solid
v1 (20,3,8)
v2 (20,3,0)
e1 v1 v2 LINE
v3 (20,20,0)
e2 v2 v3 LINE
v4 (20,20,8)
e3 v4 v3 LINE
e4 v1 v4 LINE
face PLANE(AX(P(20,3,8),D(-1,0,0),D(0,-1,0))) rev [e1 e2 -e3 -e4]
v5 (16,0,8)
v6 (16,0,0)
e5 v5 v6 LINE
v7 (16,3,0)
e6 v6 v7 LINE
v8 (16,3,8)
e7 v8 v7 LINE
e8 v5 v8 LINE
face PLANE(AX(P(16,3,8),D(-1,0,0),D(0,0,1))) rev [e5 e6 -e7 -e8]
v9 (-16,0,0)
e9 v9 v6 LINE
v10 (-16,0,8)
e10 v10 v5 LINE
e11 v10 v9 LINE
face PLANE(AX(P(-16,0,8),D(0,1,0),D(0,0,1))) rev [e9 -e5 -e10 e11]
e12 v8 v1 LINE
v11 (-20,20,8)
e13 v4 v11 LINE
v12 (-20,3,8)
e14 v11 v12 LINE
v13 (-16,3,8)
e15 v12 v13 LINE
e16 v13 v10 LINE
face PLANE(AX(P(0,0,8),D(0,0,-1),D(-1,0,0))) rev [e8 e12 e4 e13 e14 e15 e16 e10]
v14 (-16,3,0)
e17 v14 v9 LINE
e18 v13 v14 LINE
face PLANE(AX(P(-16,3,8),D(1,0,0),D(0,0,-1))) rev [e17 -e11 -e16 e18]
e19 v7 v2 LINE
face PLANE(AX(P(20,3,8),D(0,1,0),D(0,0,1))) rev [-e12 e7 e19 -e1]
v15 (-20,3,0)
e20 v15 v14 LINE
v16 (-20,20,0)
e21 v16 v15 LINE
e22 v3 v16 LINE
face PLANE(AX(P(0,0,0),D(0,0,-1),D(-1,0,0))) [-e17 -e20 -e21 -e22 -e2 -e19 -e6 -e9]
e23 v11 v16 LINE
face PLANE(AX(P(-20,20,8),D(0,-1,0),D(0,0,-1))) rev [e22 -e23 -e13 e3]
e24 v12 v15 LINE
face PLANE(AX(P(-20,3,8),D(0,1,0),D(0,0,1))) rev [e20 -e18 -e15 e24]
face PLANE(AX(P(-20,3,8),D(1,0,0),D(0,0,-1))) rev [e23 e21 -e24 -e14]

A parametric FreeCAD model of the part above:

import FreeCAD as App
import Part
import Sketcher
from FreeCAD import Vector
Q = App.Units.Quantity


def add_polygon(sketch, points):
    """Adds a closed chain of lines whose ends are joined by coincident constraints."""
    first, n = sketch.GeometryCount, len(points)
    for a, b in zip(points, points[1:] + points[:1]):
        sketch.addGeometry(Part.LineSegment(App.Vector(*a, 0), App.Vector(*b, 0)), False)
    for i in range(n):
        sketch.addConstraint(Sketcher.Constraint("Coincident", first + i, 2, first + (i + 1) % n, 1))

doc = App.newDocument("Part")
params = doc.addObject("Spreadsheet::Sheet", "Params")
for row, (alias, value) in enumerate([
    ("sketch1_width", "32 mm"),
    ("sketch1_width2", "4 mm"),
    ("sketch1_height", "3 mm"),
    ("sketch1_height2", "17 mm"),
    ("pad1_length", "8 mm"),
], start=1):
    params.set(f"A{row}", alias)
    params.set(f"B{row}", "=" + value)
    params.setAlias(f"B{row}", alias)

body = doc.addObject("PartDesign::Body", "Body")

# Sketch on XY plane
sketch1 = body.newObject("Sketcher::SketchObject", "Sketch")
sketch1.AttachmentSupport = (doc.getObject("XY_Plane"), [""])
sketch1.MapMode = "FlatFace"
add_polygon(sketch1, [(-16, 0), (16, 0), (16, 3), (20, 3), (20, 20), (-20, 20), (-20, 3), (-16, 3)])  # lines 0-7
sketch1.addConstraint([
    Sketcher.Constraint("Horizontal", 0),
    Sketcher.Constraint("Vertical", 1),
    Sketcher.Constraint("Horizontal", 2),
    Sketcher.Constraint("Vertical", 3),
    Sketcher.Constraint("Horizontal", 4),
    Sketcher.Constraint("Vertical", 5),
    Sketcher.Constraint("Horizontal", 6),
    Sketcher.Constraint("Vertical", 7),
    Sketcher.Constraint("Symmetric", 0, 2, 7, 2, -1, 1),
    Sketcher.Constraint("Symmetric", 2, 2, 5, 2, -2),
    Sketcher.Constraint("DistanceX", 0, 1, 0, 2, Q("32 mm")),
    Sketcher.Constraint("DistanceX", 2, 1, 2, 2, Q("4 mm")),
    Sketcher.Constraint("DistanceY", 1, 1, 1, 2, Q("3 mm")),
    Sketcher.Constraint("DistanceY", 3, 1, 3, 2, Q("17 mm")),
])
sketch1.setExpression("Constraints[18]", "Params.sketch1_width")
sketch1.setExpression("Constraints[19]", "Params.sketch1_width2")
sketch1.setExpression("Constraints[20]", "Params.sketch1_height")
sketch1.setExpression("Constraints[21]", "Params.sketch1_height2")
pad1 = body.newObject("PartDesign::Pad", "Pad")
pad1.Profile = sketch1
pad1.setExpression("Length", "Params.pad1_length")

doc.recompute()
